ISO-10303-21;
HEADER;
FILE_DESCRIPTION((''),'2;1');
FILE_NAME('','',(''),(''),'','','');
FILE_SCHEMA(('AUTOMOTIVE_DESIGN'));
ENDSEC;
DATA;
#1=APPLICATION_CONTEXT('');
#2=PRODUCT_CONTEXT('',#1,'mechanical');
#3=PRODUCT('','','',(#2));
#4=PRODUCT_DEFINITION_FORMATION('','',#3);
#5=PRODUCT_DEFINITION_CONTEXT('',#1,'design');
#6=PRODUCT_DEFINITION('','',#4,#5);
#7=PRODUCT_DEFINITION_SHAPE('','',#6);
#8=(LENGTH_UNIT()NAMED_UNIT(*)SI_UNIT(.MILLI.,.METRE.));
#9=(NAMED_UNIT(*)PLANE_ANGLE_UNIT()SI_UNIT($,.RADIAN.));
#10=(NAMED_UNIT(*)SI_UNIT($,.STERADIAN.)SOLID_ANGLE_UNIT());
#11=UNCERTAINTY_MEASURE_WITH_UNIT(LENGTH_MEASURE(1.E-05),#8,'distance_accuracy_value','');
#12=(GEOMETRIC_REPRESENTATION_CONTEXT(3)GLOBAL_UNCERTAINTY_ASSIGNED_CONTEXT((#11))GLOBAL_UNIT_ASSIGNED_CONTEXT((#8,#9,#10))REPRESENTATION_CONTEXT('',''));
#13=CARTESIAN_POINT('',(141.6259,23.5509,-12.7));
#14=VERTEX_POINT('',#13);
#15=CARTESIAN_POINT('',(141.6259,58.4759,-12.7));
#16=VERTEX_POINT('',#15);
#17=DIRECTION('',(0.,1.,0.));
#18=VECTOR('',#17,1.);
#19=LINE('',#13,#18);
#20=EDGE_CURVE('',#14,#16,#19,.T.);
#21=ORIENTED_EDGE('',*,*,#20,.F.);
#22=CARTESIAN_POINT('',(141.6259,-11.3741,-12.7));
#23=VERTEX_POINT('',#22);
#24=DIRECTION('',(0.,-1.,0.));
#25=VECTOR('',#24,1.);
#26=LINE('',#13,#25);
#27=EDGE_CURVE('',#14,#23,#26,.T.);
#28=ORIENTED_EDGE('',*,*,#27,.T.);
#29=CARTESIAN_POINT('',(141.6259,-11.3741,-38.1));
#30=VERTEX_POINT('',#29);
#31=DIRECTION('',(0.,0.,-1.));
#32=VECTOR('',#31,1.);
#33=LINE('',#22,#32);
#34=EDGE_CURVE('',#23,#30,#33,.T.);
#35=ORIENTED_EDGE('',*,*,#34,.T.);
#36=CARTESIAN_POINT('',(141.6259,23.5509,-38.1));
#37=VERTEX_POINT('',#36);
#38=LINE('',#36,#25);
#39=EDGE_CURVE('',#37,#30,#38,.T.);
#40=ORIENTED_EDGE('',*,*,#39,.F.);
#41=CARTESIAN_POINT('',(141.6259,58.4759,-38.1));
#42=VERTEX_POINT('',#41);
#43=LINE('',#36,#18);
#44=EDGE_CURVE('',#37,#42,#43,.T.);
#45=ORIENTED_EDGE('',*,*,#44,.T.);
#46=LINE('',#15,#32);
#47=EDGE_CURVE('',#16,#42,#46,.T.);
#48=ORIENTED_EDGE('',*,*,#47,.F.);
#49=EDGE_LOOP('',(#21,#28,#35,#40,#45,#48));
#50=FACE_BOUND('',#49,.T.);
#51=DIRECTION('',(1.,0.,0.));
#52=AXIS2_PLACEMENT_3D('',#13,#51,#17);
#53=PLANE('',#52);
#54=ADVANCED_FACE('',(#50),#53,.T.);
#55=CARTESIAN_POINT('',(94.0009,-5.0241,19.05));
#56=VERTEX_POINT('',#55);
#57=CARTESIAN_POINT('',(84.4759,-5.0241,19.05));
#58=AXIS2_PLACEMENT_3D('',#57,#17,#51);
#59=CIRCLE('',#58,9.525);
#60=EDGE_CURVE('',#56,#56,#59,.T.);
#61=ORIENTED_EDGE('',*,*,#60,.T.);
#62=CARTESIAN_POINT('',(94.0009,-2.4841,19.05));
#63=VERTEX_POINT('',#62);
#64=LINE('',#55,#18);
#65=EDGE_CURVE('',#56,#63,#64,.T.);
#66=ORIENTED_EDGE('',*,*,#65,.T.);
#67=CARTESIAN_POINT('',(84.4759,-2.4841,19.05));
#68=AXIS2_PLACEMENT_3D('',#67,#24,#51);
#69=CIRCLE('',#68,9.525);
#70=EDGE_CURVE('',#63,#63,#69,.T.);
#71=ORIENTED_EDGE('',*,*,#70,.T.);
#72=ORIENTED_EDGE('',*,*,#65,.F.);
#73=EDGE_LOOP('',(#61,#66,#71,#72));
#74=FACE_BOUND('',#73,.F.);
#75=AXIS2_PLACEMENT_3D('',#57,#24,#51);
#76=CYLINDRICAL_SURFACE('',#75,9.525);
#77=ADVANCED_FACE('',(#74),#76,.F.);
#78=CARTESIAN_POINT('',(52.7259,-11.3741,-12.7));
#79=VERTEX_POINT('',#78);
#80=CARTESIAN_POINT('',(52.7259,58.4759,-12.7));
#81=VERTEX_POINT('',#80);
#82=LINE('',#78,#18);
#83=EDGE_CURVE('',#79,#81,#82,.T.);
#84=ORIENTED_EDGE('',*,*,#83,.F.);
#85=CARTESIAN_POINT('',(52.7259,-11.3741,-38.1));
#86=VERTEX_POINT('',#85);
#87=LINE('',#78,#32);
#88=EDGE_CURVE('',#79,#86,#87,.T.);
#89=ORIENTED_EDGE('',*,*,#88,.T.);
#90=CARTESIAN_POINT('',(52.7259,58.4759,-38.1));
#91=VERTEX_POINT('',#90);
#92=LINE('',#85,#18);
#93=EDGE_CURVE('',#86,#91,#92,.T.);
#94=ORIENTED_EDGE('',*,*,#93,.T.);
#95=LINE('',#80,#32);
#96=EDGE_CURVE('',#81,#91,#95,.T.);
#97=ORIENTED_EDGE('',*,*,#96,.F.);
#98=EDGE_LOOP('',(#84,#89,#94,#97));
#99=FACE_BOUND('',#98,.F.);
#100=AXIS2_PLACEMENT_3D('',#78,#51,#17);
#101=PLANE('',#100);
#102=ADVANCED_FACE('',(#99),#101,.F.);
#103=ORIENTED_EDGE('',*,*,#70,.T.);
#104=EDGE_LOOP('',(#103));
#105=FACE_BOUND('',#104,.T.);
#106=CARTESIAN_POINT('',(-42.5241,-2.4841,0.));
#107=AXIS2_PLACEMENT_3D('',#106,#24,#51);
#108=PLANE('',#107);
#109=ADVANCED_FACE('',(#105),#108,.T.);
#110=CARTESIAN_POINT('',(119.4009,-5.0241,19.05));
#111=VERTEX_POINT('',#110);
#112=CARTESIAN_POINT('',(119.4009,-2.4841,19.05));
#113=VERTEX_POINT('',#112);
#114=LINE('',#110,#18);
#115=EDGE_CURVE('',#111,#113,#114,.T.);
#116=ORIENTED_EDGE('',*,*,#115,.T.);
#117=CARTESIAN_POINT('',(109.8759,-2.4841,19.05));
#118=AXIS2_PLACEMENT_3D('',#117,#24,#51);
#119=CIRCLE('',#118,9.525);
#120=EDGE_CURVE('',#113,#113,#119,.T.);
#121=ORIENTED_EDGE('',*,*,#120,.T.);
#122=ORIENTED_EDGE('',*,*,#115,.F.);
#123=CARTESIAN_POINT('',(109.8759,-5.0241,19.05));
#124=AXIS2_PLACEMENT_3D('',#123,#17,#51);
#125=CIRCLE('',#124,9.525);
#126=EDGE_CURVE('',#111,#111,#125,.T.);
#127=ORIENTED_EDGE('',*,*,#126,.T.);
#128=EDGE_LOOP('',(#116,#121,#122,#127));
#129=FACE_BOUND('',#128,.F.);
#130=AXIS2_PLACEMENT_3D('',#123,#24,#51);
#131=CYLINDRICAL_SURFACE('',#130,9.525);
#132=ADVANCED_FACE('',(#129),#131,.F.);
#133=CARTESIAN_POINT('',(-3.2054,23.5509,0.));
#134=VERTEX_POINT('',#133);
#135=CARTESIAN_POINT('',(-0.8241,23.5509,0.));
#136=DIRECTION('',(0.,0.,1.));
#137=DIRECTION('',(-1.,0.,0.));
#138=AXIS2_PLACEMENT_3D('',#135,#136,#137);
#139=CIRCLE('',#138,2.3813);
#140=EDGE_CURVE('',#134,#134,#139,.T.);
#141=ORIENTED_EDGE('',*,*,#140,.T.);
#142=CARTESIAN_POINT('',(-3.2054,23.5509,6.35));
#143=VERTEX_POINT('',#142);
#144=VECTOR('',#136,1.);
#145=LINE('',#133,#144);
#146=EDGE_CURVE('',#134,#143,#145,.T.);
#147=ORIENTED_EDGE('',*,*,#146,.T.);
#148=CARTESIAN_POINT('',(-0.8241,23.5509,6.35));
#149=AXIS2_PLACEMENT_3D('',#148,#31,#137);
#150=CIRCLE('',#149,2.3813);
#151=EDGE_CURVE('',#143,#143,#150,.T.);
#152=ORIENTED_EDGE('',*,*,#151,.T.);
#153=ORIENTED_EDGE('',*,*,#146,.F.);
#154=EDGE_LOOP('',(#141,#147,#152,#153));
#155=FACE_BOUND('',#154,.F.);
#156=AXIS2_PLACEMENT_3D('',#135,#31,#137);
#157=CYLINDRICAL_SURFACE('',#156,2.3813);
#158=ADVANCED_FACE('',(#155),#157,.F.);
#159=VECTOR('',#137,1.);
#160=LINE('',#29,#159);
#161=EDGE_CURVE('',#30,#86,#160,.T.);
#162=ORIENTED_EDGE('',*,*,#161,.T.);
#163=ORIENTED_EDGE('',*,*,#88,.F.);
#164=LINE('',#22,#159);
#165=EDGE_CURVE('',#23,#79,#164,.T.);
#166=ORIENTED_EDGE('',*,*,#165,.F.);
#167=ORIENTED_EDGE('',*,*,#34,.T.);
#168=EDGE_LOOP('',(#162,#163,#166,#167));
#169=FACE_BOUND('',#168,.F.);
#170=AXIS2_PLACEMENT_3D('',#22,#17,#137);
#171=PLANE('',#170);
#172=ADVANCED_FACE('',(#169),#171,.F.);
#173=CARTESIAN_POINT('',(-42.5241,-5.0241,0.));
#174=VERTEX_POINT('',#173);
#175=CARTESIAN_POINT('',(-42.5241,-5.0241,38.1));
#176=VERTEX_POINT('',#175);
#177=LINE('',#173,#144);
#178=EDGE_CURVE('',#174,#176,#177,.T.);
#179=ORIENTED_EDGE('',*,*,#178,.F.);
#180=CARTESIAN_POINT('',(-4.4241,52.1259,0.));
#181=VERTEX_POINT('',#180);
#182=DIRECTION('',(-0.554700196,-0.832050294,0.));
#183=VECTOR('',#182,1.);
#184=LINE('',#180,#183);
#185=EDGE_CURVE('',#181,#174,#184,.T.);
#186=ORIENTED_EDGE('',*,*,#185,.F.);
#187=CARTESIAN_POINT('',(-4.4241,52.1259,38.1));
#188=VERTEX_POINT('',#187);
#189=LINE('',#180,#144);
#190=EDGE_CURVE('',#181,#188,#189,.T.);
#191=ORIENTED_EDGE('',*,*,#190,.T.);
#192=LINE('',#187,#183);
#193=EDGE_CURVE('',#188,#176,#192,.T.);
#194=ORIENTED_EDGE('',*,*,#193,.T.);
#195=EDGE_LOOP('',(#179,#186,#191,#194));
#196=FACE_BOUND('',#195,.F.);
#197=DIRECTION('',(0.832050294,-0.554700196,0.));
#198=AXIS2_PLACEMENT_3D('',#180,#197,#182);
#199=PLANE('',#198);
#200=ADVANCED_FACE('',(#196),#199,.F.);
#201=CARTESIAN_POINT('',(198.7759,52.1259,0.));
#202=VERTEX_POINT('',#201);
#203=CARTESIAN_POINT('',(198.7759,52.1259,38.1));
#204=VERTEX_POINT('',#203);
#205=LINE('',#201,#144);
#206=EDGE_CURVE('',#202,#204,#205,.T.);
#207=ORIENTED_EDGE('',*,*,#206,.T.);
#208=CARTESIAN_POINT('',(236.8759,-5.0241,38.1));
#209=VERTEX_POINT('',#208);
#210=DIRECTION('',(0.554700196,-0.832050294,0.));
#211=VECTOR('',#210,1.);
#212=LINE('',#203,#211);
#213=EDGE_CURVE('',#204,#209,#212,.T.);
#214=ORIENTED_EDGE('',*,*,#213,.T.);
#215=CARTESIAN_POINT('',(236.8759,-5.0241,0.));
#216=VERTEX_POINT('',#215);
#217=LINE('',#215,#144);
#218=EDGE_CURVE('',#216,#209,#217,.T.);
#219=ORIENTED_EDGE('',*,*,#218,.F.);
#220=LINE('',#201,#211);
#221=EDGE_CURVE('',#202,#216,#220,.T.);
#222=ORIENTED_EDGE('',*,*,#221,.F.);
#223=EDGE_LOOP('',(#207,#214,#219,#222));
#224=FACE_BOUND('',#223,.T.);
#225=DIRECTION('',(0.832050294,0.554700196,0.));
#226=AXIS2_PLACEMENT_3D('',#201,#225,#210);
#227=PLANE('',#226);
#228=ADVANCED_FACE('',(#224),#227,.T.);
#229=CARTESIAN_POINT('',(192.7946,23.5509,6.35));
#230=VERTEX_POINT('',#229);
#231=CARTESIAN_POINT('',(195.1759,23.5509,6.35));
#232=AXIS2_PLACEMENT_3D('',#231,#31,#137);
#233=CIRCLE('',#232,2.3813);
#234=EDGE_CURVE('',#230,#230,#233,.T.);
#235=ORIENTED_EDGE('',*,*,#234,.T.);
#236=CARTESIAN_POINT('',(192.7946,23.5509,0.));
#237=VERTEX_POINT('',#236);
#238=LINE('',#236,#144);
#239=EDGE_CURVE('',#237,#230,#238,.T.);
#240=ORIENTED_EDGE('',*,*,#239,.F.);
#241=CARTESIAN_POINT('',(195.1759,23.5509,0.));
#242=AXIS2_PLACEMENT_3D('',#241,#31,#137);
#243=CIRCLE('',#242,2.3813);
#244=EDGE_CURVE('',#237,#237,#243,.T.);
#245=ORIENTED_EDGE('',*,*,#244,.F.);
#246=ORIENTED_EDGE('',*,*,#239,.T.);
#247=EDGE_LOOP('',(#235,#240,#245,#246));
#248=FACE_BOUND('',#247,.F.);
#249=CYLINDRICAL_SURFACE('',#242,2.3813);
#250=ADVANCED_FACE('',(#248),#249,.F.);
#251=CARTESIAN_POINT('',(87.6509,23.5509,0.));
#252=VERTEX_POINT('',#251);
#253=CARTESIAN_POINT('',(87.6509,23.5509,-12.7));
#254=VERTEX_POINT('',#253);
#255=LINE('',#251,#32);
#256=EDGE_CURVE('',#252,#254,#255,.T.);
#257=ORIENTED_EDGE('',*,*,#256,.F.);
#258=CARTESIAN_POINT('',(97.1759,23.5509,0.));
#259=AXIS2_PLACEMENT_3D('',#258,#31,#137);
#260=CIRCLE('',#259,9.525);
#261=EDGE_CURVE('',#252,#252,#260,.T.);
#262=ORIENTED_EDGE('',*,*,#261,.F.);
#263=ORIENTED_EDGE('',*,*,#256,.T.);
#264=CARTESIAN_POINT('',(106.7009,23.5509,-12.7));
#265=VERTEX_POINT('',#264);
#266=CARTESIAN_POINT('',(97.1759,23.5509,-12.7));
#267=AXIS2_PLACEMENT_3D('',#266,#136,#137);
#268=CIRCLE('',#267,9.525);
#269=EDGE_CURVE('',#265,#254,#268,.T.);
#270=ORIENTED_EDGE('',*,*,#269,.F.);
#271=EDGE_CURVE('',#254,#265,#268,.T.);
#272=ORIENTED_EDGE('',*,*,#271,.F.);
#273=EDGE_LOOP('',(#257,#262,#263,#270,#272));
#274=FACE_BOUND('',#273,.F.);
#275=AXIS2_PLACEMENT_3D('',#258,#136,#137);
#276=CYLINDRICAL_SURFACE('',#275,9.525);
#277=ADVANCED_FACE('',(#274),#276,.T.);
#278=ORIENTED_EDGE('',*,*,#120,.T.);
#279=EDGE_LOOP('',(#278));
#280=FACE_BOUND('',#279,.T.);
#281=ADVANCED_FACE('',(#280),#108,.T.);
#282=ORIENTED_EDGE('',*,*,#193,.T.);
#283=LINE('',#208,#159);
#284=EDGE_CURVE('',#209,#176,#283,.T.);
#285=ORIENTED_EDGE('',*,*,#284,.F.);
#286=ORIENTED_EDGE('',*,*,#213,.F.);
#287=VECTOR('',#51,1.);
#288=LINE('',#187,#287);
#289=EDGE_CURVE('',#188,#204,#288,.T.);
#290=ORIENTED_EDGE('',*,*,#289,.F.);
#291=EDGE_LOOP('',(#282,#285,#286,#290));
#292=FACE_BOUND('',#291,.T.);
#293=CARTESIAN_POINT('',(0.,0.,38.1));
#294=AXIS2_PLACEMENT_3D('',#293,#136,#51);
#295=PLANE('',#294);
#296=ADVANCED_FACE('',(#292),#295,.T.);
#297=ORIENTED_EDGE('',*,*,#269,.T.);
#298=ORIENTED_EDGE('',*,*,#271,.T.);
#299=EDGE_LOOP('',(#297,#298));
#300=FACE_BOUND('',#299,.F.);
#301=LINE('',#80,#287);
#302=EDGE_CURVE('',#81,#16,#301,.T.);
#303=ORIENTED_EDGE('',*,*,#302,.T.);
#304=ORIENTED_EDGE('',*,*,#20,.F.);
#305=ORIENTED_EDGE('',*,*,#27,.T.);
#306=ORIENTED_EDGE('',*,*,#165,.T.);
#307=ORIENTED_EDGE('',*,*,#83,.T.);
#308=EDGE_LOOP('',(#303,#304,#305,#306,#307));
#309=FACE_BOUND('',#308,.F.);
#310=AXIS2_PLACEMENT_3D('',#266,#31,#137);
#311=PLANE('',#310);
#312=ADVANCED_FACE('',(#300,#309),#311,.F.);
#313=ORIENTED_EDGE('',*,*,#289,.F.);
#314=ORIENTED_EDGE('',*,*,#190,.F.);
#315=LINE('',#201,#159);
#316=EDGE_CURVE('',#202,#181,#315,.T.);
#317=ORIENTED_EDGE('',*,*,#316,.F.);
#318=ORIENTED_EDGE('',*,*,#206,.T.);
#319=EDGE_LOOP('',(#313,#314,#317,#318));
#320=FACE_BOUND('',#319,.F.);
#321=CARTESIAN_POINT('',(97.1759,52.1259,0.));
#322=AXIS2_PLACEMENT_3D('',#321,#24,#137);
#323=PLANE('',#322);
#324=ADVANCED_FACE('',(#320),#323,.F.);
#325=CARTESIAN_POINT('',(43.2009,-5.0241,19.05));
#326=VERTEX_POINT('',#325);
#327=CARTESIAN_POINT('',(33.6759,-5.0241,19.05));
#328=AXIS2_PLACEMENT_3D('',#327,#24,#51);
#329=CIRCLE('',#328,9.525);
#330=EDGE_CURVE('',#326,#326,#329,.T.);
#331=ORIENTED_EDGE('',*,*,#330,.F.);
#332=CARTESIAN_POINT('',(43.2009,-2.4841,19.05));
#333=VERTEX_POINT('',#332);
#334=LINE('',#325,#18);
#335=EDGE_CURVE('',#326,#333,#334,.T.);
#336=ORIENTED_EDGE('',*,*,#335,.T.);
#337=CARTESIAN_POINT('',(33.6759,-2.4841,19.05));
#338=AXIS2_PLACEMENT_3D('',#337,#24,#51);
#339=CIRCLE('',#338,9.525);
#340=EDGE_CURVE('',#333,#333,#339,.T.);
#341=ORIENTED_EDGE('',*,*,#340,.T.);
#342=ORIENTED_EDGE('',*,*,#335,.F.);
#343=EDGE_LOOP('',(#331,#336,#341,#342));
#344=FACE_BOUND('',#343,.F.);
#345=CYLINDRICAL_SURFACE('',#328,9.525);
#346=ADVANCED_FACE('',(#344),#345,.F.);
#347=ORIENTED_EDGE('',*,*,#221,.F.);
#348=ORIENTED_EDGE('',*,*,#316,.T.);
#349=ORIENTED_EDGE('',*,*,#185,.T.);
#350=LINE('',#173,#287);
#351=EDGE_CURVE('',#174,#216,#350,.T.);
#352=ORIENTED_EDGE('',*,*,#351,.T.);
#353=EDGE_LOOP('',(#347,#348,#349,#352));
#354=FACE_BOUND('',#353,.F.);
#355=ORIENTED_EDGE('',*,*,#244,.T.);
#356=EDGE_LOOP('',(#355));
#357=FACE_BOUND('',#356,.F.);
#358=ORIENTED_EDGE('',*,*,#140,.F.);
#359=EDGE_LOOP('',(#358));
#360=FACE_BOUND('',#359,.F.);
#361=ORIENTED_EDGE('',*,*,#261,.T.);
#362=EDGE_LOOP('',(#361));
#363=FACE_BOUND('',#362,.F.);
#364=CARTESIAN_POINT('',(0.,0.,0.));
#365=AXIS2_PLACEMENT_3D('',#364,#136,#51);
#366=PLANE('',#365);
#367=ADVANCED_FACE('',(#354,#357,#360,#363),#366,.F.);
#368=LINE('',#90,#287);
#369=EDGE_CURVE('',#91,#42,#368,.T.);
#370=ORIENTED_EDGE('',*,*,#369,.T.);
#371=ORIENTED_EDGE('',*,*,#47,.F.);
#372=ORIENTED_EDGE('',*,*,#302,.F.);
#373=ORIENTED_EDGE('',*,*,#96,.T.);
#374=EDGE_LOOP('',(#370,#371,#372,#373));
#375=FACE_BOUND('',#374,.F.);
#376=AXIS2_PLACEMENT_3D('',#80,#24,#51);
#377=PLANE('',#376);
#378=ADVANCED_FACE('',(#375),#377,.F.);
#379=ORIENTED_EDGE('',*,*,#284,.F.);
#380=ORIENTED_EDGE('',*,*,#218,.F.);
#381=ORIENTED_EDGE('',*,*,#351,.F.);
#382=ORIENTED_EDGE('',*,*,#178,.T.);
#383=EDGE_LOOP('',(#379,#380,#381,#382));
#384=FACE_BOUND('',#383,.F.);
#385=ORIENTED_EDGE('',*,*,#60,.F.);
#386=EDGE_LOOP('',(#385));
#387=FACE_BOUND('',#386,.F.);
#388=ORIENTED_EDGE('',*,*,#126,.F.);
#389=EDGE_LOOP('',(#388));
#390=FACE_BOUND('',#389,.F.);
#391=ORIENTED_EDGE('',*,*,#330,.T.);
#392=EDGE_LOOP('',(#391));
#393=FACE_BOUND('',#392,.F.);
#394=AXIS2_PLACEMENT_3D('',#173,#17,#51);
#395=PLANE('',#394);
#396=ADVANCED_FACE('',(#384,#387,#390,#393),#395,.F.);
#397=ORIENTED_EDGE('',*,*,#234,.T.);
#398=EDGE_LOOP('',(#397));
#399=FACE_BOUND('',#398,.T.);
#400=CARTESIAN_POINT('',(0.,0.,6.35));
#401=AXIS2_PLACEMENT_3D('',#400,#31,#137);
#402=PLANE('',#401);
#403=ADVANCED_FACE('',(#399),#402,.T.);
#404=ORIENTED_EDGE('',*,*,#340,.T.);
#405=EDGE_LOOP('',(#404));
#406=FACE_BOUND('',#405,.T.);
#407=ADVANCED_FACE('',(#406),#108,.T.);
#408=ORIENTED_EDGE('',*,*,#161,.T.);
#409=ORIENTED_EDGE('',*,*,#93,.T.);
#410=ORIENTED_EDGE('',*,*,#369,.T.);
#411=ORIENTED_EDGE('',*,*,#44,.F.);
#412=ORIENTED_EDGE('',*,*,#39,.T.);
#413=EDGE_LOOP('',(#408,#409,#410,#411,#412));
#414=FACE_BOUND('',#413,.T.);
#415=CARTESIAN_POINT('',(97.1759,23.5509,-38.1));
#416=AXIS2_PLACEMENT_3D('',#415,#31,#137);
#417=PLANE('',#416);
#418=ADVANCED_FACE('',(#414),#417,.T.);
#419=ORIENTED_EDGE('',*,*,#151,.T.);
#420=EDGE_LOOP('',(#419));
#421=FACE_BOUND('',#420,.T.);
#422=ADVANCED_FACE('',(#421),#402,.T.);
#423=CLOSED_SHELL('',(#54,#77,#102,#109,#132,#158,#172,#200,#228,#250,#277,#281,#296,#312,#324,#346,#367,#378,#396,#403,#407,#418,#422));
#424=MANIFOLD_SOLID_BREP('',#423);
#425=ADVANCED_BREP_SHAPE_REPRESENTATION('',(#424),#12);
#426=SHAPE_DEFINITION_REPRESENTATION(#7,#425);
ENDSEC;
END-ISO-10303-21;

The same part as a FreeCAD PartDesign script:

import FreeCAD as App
import Part
import Sketcher

V = App.Vector
Q = App.Units.Quantity


def add_polygon(sketch, points):
    """Adds a closed chain of lines whose ends are joined by coincident constraints."""
    first, n = sketch.GeometryCount, len(points)
    for a, b in zip(points, points[1:] + points[:1]):
        sketch.addGeometry(Part.LineSegment(App.Vector(*a, 0), App.Vector(*b, 0)), False)
    for i in range(n):
        sketch.addConstraint(Sketcher.Constraint("Coincident", first + i, 2, first + (i + 1) % n, 1))

doc = App.newDocument("Part")
params = doc.addObject("Spreadsheet::Sheet", "Params")
for row, (alias, value) in enumerate([
    ("sketch1_width", "11 in"),
    ("sketch1_width2", "8 in"),
    ("pad1_length", "1.5 in"),
    ("sketch2_diameter", "0.75 in"),
    ("pad2_length", "0.5 in"),
    ("sketch3_width", "3.5 in"),
    ("sketch3_height", "2.75 in"),
    ("pad3_length", "1 in"),
    ("sketch4_diameter", "0.75 in"),
    ("pocket1_length", "0.1 in"),
    ("sketch5_diameter", "0.1875 in"),
    ("pocket2_length", "0.25 in"),
], start=1):
    params.set(f"A{row}", alias)
    params.set(f"B{row}", "=" + value)
    params.setAlias(f"B{row}", alias)

body = doc.addObject("PartDesign::Body", "Body")

sketch1 = body.newObject("Sketcher::SketchObject", "Sketch")
sketch1.AttachmentSupport = (doc.getObject("XY_Plane"), [""])
sketch1.MapMode = "FlatFace"
add_polygon(sketch1, [(-4, 52), (-43, -5), (237, -5), (199, 52)])
sketch1.addConstraint(Sketcher.Constraint("Horizontal", 1))
sketch1.addConstraint(Sketcher.Constraint("Horizontal", 3))
sketch1.addConstraint(Sketcher.Constraint("Equal", 0, 2))
sketch1.addConstraint(Sketcher.Constraint("DistanceX", 1, 1, 1, 2, Q("11 in")))
sketch1.addConstraint(Sketcher.Constraint("DistanceX", 3, 2, 3, 1, Q("8 in")))
sketch1.addConstraint(Sketcher.Constraint("DistanceY", 1, 2, 2, 2, Q("2.25 in")))
sketch1.addConstraint(Sketcher.Constraint("DistanceY", 0, 2, -1, 1, Q("0.1978 in")))
sketch1.addConstraint(Sketcher.Constraint("DistanceX", 0, 2, -1, 1, 42.524))
sketch1.setExpression("Constraints[7]", "Params.sketch1_width")
sketch1.setExpression("Constraints[8]", "Params.sketch1_width2")
pad1 = body.newObject("PartDesign::Pad", "Pad")
pad1.Profile = sketch1
pad1.setExpression("Length", "Params.pad1_length")

sketch2 = body.newObject("Sketcher::SketchObject", "Sketch001")
sketch2.AttachmentSupport = (doc.getObject("XY_Plane"), [""])
sketch2.MapMode = "FlatFace"
sketch2.addGeometry(Part.Circle(V(97, 24, 0), V(0, 0, 1), 10), False)
sketch2.addConstraint(Sketcher.Constraint("Diameter", 0, Q("0.75 in")))
sketch2.addConstraint(Sketcher.Constraint("DistanceY", -1, 1, 0, 3, Q("0.9272 in")))
sketch2.addConstraint(Sketcher.Constraint("DistanceX", -1, 1, 0, 3, 97.176))
sketch2.setExpression("Constraints[0]", "Params.sketch2_diameter")
pad2 = body.newObject("PartDesign::Pad", "Pad001")
pad2.Profile = sketch2
pad2.setExpression("Length", "Params.pad2_length")
pad2.Reversed = True

sketch3 = body.newObject("Sketcher::SketchObject", "Sketch002")
sketch3.AttachmentSupport = (doc.getObject("XY_Plane"), [""])
sketch3.MapMode = "FlatFace"
sketch3.AttachmentOffset = App.Placement(V(0, 0, -0.5 * 25.4), App.Rotation())
add_polygon(sketch3, [(142, 58), (142, 24), (142, -11), (53, -11), (53, 58)])
sketch3.addConstraint(Sketcher.Constraint("Vertical", 0))
sketch3.addConstraint(Sketcher.Constraint("Vertical", 1))
sketch3.addConstraint(Sketcher.Constraint("Horizontal", 2))
sketch3.addConstraint(Sketcher.Constraint("Vertical", 3))
sketch3.addConstraint(Sketcher.Constraint("Horizontal", 4))
sketch3.addConstraint(Sketcher.Constraint("Equal", 0, 1))
sketch3.addConstraint(Sketcher.Constraint("DistanceX", 2, 2, 2, 1, Q("3.5 in")))
sketch3.addConstraint(Sketcher.Constraint("DistanceY", 3, 1, 3, 2, Q("2.75 in")))
sketch3.addConstraint(Sketcher.Constraint("DistanceY", -1, 1, 0, 2, Q("0.9272 in")))
sketch3.addConstraint(Sketcher.Constraint("DistanceX", -1, 1, 0, 2, 141.626))
sketch3.setExpression("Constraints[11]", "Params.sketch3_width")
sketch3.setExpression("Constraints[12]", "Params.sketch3_height")
pad3 = body.newObject("PartDesign::Pad", "Pad002")
pad3.Profile = sketch3
pad3.setExpression("Length", "Params.pad3_length")
pad3.Reversed = True

sketch4 = body.newObject("Sketcher::SketchObject", "Sketch003")
sketch4.AttachmentSupport = (doc.getObject("XZ_Plane"), [""])
sketch4.MapMode = "FlatFace"
sketch4.AttachmentOffset = App.Placement(V(0, 0, 0.1977992 * 25.4), App.Rotation())
sketch4.addGeometry(Part.Circle(V(110, 19, 0), V(0, 0, 1), 10), False)
sketch4.addGeometry(Part.Circle(V(34, 19, 0), V(0, 0, 1), 10), False)
sketch4.addGeometry(Part.Circle(V(84, 19, 0), V(0, 0, 1), 10), False)
sketch4.addConstraint(Sketcher.Constraint("Equal", 0, 1))
sketch4.addConstraint(Sketcher.Constraint("Equal", 1, 2))
sketch4.addConstraint(Sketcher.Constraint("Horizontal", 0, 3, 1, 3))
sketch4.addConstraint(Sketcher.Constraint("Horizontal", 1, 3, 2, 3))
sketch4.addConstraint(Sketcher.Constraint("Diameter", 0, Q("0.75 in")))
sketch4.addConstraint(Sketcher.Constraint("DistanceY", -1, 1, 0, 3, Q("0.75 in")))
sketch4.addConstraint(Sketcher.Constraint("DistanceX", 1, 3, 0, 3, Q("3 in")))
sketch4.addConstraint(Sketcher.Constraint("DistanceX", 2, 3, 0, 3, Q("1 in")))
sketch4.addConstraint(Sketcher.Constraint("DistanceX", -1, 1, 0, 3, 109.876))
sketch4.setExpression("Constraints[4]", "Params.sketch4_diameter")
pocket1 = body.newObject("PartDesign::Pocket", "Pocket")
pocket1.Profile = sketch4
pocket1.setExpression("Length", "Params.pocket1_length")

sketch5 = body.newObject("Sketcher::SketchObject", "Sketch004")
sketch5.AttachmentSupport = (doc.getObject("XY_Plane"), [""])
sketch5.MapMode = "FlatFace"
sketch5.addGeometry(Part.Circle(V(195.2, 23.6, 0), V(0, 0, 1), 2.4), False)
sketch5.addGeometry(Part.Circle(V(-0.8, 23.6, 0), V(0, 0, 1), 2.4), False)
sketch5.addConstraint(Sketcher.Constraint("Equal", 0, 1))
sketch5.addConstraint(Sketcher.Constraint("Horizontal", 0, 3, 1, 3))
sketch5.addConstraint(Sketcher.Constraint("Diameter", 0, Q("0.1875 in")))
sketch5.addConstraint(Sketcher.Constraint("DistanceX", -1, 1, 0, 3, Q("7.6841 in")))
sketch5.addConstraint(Sketcher.Constraint("DistanceY", -1, 1, 0, 3, Q("0.9272 in")))
sketch5.addConstraint(Sketcher.Constraint("DistanceX", 1, 3, -1, 1, 0.824))
sketch5.setExpression("Constraints[2]", "Params.sketch5_diameter")
pocket2 = body.newObject("PartDesign::Pocket", "Pocket001")
pocket2.Profile = sketch5
pocket2.setExpression("Length", "Params.pocket2_length")
pocket2.Reversed = True

doc.recompute()
